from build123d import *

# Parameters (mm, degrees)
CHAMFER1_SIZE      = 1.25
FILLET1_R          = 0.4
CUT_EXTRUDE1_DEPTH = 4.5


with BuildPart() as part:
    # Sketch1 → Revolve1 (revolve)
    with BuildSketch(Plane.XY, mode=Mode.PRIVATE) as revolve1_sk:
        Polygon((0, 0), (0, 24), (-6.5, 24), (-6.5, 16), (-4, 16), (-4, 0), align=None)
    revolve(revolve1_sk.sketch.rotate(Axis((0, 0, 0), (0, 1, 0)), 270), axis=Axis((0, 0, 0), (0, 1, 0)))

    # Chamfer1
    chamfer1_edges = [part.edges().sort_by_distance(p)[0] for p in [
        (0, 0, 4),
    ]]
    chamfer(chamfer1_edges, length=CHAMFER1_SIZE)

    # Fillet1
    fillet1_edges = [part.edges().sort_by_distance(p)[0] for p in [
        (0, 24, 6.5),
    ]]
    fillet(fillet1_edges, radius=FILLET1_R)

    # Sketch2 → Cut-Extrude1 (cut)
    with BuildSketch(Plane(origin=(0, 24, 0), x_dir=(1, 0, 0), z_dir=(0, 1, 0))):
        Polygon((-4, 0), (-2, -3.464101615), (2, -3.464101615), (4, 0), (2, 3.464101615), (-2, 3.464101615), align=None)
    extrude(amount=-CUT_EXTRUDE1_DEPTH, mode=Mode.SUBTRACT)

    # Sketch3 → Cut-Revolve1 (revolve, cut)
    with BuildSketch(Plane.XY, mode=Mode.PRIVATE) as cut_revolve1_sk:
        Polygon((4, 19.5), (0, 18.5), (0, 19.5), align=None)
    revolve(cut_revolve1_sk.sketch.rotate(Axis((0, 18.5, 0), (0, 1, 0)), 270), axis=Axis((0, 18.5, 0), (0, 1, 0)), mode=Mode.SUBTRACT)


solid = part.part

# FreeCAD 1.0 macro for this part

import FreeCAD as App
import Part
import Sketcher
Q = App.Units.Quantity


def edges_at(feature, points):
    """Names of the edges that pass closest to the given points."""
    edges = feature.Shape.Edges
    near = lambda p: min(range(len(edges)), key=lambda i: edges[i].distToShape(Part.Vertex(*p))[0])
    return sorted({f"Edge{near(p) + 1}" for p in points})

doc = App.newDocument("Part")
body = doc.addObject("PartDesign::Body", "Body")

# Sketch on XY plane
sketch1 = doc.addObject("Sketcher::SketchObject", "Sketch")
body.addObject(sketch1)
sketch1.AttachmentSupport = (doc.XY_Plane, [""])
sketch1.MapMode = "FlatFace"
sketch1.addGeometry([
    Part.LineSegment(App.Vector(0, 0, 0), App.Vector(0, 24, 0)),  # 0
    Part.LineSegment(App.Vector(0, 24, 0), App.Vector(-6.5, 24, 0)),  # 1
    Part.LineSegment(App.Vector(-6.5, 24, 0), App.Vector(-6.5, 16, 0)),  # 2
    Part.LineSegment(App.Vector(-6.5, 16, 0), App.Vector(-4, 16, 0)),  # 3
    Part.LineSegment(App.Vector(-4, 16, 0), App.Vector(-4, 0, 0)),  # 4
    Part.LineSegment(App.Vector(-4, 0, 0), App.Vector(0, 0, 0)),  # 5
], False)
sketch1.addConstraint([
    Sketcher.Constraint("Coincident", 0, 2, 1, 1),
    Sketcher.Constraint("Coincident", 1, 2, 2, 1),
    Sketcher.Constraint("Coincident", 2, 2, 3, 1),
    Sketcher.Constraint("Coincident", 3, 2, 4, 1),
    Sketcher.Constraint("Coincident", 4, 2, 5, 1),
    Sketcher.Constraint("Coincident", 5, 2, 0, 1),
    Sketcher.Constraint("Vertical", 0),
    Sketcher.Constraint("Horizontal", 1),
    Sketcher.Constraint("Vertical", 2),
    Sketcher.Constraint("Horizontal", 3),
    Sketcher.Constraint("Vertical", 4),
    Sketcher.Constraint("Horizontal", 5),
    Sketcher.Constraint("Coincident", 5, 2, -1, 1),
    Sketcher.Constraint("DistanceX", 5, 1, 5, 2, 4.0),
    Sketcher.Constraint("DistanceY", 0, 1, 0, 2, 24.0),
    Sketcher.Constraint("DistanceY", 2, 2, 2, 1, 8.0),
    Sketcher.Constraint("DistanceX", 1, 2, 1, 1, 6.5),
])
revolution = doc.addObject("PartDesign::Revolution", "Revolution")
body.addObject(revolution)
revolution.Profile = sketch1
revolution.ReferenceAxis = (sketch1, ["V_Axis"])
revolution.Angle = 360
doc.recompute()

chamfer = doc.addObject("PartDesign::Chamfer", "Chamfer")
body.addObject(chamfer)
chamfer.Base = (revolution, edges_at(revolution, [(0, 0, 4)]))
chamfer.Size = 1.25
doc.recompute()

fillet = doc.addObject("PartDesign::Fillet", "Fillet")
body.addObject(fillet)
fillet.Base = (chamfer, edges_at(chamfer, [(0, 24, 6.5)]))
fillet.Radius = 0.4

# Sketch on XZ plane
sketch2 = doc.addObject("Sketcher::SketchObject", "Sketch001")
body.addObject(sketch2)
sketch2.AttachmentSupport = (doc.XZ_Plane, [""])
sketch2.MapMode = "FlatFace"
sketch2.AttachmentOffset = App.Placement(App.Vector(0, 0, -24), App.Rotation())
sketch2.addGeometry([
    Part.LineSegment(App.Vector(-4, 0, 0), App.Vector(-2, 3.464102, 0)),  # 0
    Part.LineSegment(App.Vector(-2, 3.464102, 0), App.Vector(2, 3.464102, 0)),  # 1
    Part.LineSegment(App.Vector(2, 3.464102, 0), App.Vector(4, 0, 0)),  # 2
    Part.LineSegment(App.Vector(4, 0, 0), App.Vector(2, -3.464102, 0)),  # 3
    Part.LineSegment(App.Vector(2, -3.464102, 0), App.Vector(-2, -3.464102, 0)),  # 4
    Part.LineSegment(App.Vector(-2, -3.464102, 0), App.Vector(-4, 0, 0)),  # 5
], False)
sketch2.addConstraint([
    Sketcher.Constraint("Coincident", 0, 2, 1, 1),
    Sketcher.Constraint("Coincident", 1, 2, 2, 1),
    Sketcher.Constraint("Coincident", 2, 2, 3, 1),
    Sketcher.Constraint("Coincident", 3, 2, 4, 1),
    Sketcher.Constraint("Coincident", 4, 2, 5, 1),
    Sketcher.Constraint("Coincident", 5, 2, 0, 1),
    Sketcher.Constraint("Horizontal", 1),
    Sketcher.Constraint("Horizontal", 4),
    Sketcher.Constraint("Symmetric", 0, 2, 3, 2, -1, 1),
    Sketcher.Constraint("Symmetric", 2, 2, 5, 2, -1, 1),
    Sketcher.Constraint("PointOnObject", 2, 2, -1),
    Sketcher.Constraint("Parallel", 2, 5),
    Sketcher.Constraint("Vertical", 1, 2, 3, 2),
    Sketcher.Constraint("DistanceX", 1, 1, 1, 2, 4.0),
    Sketcher.Constraint("Angle", 0, Q("60 deg")),
    Sketcher.Constraint("Distance", 0, 4.0),
])
pocket1 = doc.addObject("PartDesign::Pocket", "Pocket")
body.addObject(pocket1)
pocket1.Profile = sketch2
pocket1.Length = 4.5
pocket1.Reversed = True

# Sketch on XY plane
sketch3 = doc.addObject("Sketcher::SketchObject", "Sketch002")
body.addObject(sketch3)
sketch3.AttachmentSupport = (doc.XY_Plane, [""])
sketch3.MapMode = "FlatFace"
sketch3.addGeometry([
    Part.LineSegment(App.Vector(0, 18.5, 0), App.Vector(4, 19.5, 0)),
    Part.LineSegment(App.Vector(4, 19.5, 0), App.Vector(0, 19.5, 0)),
    Part.LineSegment(App.Vector(0, 19.5, 0), App.Vector(0, 18.5, 0)),
], False)
sketch3.addConstraint([
    Sketcher.Constraint("Coincident", 0, 2, 1, 1),
    Sketcher.Constraint("Coincident", 1, 2, 2, 1),
    Sketcher.Constraint("Coincident", 2, 2, 0, 1),
    Sketcher.Constraint("Horizontal", 1),
    Sketcher.Constraint("Vertical", 2),
    Sketcher.Constraint("PointOnObject", 1, 2, -2),
    Sketcher.Constraint("DistanceX", 1, 2, 1, 1, 4.0),
    Sketcher.Constraint("DistanceY", 2, 2, 2, 1, 1.0),
    Sketcher.Constraint("DistanceY", -1, 1, 0, 2, 19.5),
])
groove = doc.addObject("PartDesign::Groove", "Groove")
body.addObject(groove)
groove.Profile = sketch3
groove.ReferenceAxis = (sketch3, ["V_Axis"])
groove.Angle = 360

doc.recompute()
